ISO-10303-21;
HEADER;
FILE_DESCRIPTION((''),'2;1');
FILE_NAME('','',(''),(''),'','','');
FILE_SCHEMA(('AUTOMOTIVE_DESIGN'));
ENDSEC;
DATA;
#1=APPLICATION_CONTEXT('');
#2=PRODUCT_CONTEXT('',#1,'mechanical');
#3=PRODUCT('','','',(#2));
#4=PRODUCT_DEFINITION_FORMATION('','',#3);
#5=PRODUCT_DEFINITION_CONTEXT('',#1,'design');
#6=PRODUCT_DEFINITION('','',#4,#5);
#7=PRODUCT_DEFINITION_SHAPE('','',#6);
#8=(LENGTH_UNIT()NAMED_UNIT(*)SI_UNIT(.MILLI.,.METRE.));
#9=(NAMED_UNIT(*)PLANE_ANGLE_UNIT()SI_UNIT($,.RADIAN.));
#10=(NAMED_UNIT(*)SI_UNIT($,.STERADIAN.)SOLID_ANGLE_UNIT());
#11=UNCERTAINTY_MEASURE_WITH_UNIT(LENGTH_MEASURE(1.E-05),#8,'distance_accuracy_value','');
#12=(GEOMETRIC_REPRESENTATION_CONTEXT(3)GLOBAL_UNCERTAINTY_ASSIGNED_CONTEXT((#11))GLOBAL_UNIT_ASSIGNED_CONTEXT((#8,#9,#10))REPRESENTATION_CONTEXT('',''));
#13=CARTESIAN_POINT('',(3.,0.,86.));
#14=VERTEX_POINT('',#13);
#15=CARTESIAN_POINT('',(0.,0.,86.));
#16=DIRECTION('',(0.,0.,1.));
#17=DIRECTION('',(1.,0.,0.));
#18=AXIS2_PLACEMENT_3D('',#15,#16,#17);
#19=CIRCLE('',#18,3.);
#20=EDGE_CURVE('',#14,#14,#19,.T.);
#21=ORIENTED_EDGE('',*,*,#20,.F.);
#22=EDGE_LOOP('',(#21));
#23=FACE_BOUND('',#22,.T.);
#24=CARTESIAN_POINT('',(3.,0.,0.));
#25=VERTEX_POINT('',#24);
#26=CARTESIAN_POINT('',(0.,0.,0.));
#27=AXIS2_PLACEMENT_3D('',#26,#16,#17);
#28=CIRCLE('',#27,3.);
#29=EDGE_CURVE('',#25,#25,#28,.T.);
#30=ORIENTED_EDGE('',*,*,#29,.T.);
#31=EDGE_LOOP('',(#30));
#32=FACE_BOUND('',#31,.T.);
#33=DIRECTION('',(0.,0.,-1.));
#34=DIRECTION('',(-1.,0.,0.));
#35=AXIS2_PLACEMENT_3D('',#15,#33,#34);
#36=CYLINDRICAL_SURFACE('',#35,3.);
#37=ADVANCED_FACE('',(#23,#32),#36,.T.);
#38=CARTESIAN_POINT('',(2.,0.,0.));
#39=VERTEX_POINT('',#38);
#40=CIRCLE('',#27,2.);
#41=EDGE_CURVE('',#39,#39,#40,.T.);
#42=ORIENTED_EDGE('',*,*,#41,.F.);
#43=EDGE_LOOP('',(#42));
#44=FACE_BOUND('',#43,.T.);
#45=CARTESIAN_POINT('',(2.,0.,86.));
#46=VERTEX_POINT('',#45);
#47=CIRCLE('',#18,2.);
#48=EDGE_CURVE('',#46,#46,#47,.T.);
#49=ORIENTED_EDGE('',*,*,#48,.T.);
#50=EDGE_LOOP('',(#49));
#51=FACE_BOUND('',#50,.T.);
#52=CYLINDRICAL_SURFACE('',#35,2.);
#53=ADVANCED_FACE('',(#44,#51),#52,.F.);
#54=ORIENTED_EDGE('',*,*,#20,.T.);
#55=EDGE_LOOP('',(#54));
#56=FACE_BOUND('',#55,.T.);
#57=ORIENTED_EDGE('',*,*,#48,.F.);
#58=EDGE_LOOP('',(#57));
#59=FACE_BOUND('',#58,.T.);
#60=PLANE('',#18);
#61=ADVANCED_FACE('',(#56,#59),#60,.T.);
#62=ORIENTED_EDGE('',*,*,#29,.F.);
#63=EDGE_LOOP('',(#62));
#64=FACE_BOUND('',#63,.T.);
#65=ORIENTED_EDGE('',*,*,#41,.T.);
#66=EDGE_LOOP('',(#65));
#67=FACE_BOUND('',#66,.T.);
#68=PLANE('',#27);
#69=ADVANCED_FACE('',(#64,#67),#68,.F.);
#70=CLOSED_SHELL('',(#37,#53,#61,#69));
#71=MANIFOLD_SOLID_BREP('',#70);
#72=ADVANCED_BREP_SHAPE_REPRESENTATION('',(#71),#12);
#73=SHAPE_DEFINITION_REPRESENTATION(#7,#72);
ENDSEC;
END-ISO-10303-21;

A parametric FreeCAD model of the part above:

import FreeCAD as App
import Part
import Sketcher
from FreeCAD import Vector
Q = App.Units.Quantity

doc = App.newDocument("Part")
body = doc.addObject("PartDesign::Body", "Body")

# Sketch on XY plane
sketch1 = doc.addObject("Sketcher::SketchObject", "Sketch")
body.addObject(sketch1)
sketch1.AttachmentSupport = (doc.XY_Plane, [""])
sketch1.MapMode = "FlatFace"
sketch1.addGeometry([
    Part.Circle(Vector(0, 0, 0), Vector(0, 0, 1), 3),
    Part.Circle(Vector(0, 0, 0), Vector(0, 0, 1), 2),
], False)
sketch1.addConstraint([
    Sketcher.Constraint("Coincident", 0, 3, -1, 1),
    Sketcher.Constraint("Coincident", 1, 3, -1, 1),
    Sketcher.Constraint("Diameter", 0, Q("6 mm")),
    Sketcher.Constraint("Diameter", 1, Q("4 mm")),
])
pad1 = doc.addObject("PartDesign::Pad", "Pad")
body.addObject(pad1)
pad1.Profile = sketch1
pad1.Length = 86

doc.recompute()
